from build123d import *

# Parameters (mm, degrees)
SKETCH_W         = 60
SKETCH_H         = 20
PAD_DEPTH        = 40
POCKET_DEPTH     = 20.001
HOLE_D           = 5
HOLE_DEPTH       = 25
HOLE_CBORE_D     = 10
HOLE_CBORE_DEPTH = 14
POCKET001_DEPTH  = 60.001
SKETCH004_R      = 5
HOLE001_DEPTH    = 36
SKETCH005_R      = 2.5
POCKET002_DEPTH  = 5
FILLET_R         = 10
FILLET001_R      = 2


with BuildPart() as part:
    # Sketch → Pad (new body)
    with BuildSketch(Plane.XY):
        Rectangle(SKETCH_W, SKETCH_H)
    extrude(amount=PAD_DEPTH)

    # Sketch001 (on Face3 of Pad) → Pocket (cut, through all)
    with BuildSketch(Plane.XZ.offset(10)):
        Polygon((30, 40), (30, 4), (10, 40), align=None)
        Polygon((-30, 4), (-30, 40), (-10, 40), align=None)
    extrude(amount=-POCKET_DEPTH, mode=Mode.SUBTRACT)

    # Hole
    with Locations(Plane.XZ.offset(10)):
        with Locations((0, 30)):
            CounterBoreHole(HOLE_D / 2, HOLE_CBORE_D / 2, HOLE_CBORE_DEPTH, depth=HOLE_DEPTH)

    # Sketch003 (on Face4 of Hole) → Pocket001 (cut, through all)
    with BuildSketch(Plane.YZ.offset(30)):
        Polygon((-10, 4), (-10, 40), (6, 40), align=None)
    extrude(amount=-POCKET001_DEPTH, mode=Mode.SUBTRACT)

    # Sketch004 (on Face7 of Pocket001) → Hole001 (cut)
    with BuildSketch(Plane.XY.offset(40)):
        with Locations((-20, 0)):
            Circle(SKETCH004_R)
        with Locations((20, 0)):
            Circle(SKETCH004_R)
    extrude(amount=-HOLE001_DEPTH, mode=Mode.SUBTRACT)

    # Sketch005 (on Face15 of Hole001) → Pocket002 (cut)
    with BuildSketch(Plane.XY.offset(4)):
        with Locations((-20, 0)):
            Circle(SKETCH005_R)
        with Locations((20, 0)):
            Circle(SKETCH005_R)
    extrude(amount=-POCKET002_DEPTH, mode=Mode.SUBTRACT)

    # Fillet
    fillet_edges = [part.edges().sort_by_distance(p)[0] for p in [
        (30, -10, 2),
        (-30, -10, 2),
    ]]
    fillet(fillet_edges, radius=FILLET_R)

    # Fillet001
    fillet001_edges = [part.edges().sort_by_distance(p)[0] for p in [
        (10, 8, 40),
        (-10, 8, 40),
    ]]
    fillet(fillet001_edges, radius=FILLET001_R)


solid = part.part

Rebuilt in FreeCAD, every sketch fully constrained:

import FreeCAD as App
import Part
import Sketcher
from FreeCAD import Vector


def edges_at(feature, points):
    """Names of the edges that pass closest to the given points."""
    edges = feature.Shape.Edges
    near = lambda p: min(range(len(edges)), key=lambda i: edges[i].distToShape(Part.Vertex(*p))[0])
    return sorted({f"Edge{near(p) + 1}" for p in points})


def add_polygon(sketch, points):
    """Adds a closed chain of lines whose ends are joined by coincident constraints."""
    first, n = sketch.GeometryCount, len(points)
    for a, b in zip(points, points[1:] + points[:1]):
        sketch.addGeometry(Part.LineSegment(App.Vector(*a, 0), App.Vector(*b, 0)), False)
    for i in range(n):
        sketch.addConstraint(Sketcher.Constraint("Coincident", first + i, 2, first + (i + 1) % n, 1))

doc = App.newDocument("Part")
body = doc.addObject("PartDesign::Body", "Body")

# Sketch on XY plane
sketch1 = body.newObject("Sketcher::SketchObject", "Sketch")
sketch1.AttachmentSupport = (doc.getObject("XY_Plane"), [""])
sketch1.MapMode = "FlatFace"
add_polygon(sketch1, [(-30, 10), (-30, -10), (30, -10), (30, 10)])  # lines 0-3
sketch1.addConstraint(Sketcher.Constraint("Vertical", 0))
sketch1.addConstraint(Sketcher.Constraint("Horizontal", 1))
sketch1.addConstraint(Sketcher.Constraint("Vertical", 2))
sketch1.addConstraint(Sketcher.Constraint("Horizontal", 3))
sketch1.addConstraint(Sketcher.Constraint("Symmetric", 0, 2, 2, 2, -1, 1))
sketch1.addConstraint(Sketcher.Constraint("DistanceX", 1, 1, 1, 2, 60.0))
sketch1.addConstraint(Sketcher.Constraint("DistanceY", 0, 2, 0, 1, 20.0))
pad1 = body.newObject("PartDesign::Pad", "Pad")
pad1.Profile = sketch1
pad1.Length = 40

# Sketch on XZ plane
sketch2 = body.newObject("Sketcher::SketchObject", "Sketch001")
sketch2.AttachmentSupport = (doc.getObject("XZ_Plane"), [""])
sketch2.MapMode = "FlatFace"
sketch2.AttachmentOffset = App.Placement(Vector(0, 0, 10), App.Rotation())
add_polygon(sketch2, [(30, 4), (30, 40), (10, 40)])  # lines 0-2
add_polygon(sketch2, [(-30, 40), (-30, 4), (-10, 40)])  # lines 3-5
sketch2.addConstraint(Sketcher.Constraint("Vertical", 0))
sketch2.addConstraint(Sketcher.Constraint("Horizontal", 1))
sketch2.addConstraint(Sketcher.Constraint("Vertical", 3))
sketch2.addConstraint(Sketcher.Constraint("Horizontal", 5))
sketch2.addConstraint(Sketcher.Constraint("Symmetric", 2, 2, 3, 2, -2))
sketch2.addConstraint(Sketcher.Constraint("Symmetric", 1, 2, 4, 2, -2))
sketch2.addConstraint(Sketcher.Constraint("DistanceX", 1, 2, 1, 1, 20.0))
sketch2.addConstraint(Sketcher.Constraint("DistanceY", 0, 1, 0, 2, 36.0))
sketch2.addConstraint(Sketcher.Constraint("DistanceX", -1, 1, 0, 2, 30.0))
sketch2.addConstraint(Sketcher.Constraint("DistanceY", -1, 1, 0, 2, 40.0))
pocket1 = body.newObject("PartDesign::Pocket", "Pocket")
pocket1.Profile = sketch2
pocket1.Type = "ThroughAll"

# Sketch on XZ plane
sketch3 = body.newObject("Sketcher::SketchObject", "Sketch002")
sketch3.AttachmentSupport = (doc.getObject("XZ_Plane"), [""])
sketch3.MapMode = "FlatFace"
sketch3.AttachmentOffset = App.Placement(Vector(0, 0, 10), App.Rotation())
sketch3.addGeometry(Part.Circle(Vector(0, 30, 0), Vector(0, 0, 1), 2.5), False)
sketch3.addConstraint(Sketcher.Constraint("PointOnObject", 0, 3, -2))
sketch3.addConstraint(Sketcher.Constraint("Diameter", 0, 5.0))
sketch3.addConstraint(Sketcher.Constraint("DistanceY", -1, 1, 0, 3, 30.0))
doc.recompute()
hole = body.newObject("PartDesign::Hole", "Hole")
hole.Profile = sketch3
hole.ThreadType = "None"
hole.Diameter = 5
hole.DepthType = "Dimension"
hole.Depth = 25
hole.DrillPoint = "Flat"
hole.HoleCutType = "Counterbore"
hole.HoleCutDiameter = 10
hole.HoleCutDepth = 14

# Sketch on YZ plane
sketch4 = body.newObject("Sketcher::SketchObject", "Sketch003")
sketch4.AttachmentSupport = (doc.getObject("YZ_Plane"), [""])
sketch4.MapMode = "FlatFace"
sketch4.AttachmentOffset = App.Placement(Vector(0, 0, 30), App.Rotation())
add_polygon(sketch4, [(-10, 40), (-10, 4), (6, 40)])  # lines 0-2
sketch4.addConstraint(Sketcher.Constraint("Vertical", 0))
sketch4.addConstraint(Sketcher.Constraint("Horizontal", 2))
sketch4.addConstraint(Sketcher.Constraint("DistanceX", 2, 2, 2, 1, 16.0))
sketch4.addConstraint(Sketcher.Constraint("DistanceY", 0, 2, 0, 1, 36.0))
sketch4.addConstraint(Sketcher.Constraint("DistanceX", 0, 2, -1, 1, 10.0))
sketch4.addConstraint(Sketcher.Constraint("DistanceY", -1, 1, 0, 2, 4.0))
pocket2 = body.newObject("PartDesign::Pocket", "Pocket001")
pocket2.Profile = sketch4
pocket2.Type = "ThroughAll"

# Sketch on XY plane
sketch5 = body.newObject("Sketcher::SketchObject", "Sketch004")
sketch5.AttachmentSupport = (doc.getObject("XY_Plane"), [""])
sketch5.MapMode = "FlatFace"
sketch5.AttachmentOffset = App.Placement(Vector(0, 0, 40), App.Rotation())
sketch5.addGeometry(Part.Circle(Vector(-20, 0, 0), Vector(0, 0, 1), 5), False)
sketch5.addGeometry(Part.Circle(Vector(20, 0, 0), Vector(0, 0, 1), 5), False)
sketch5.addConstraint(Sketcher.Constraint("Equal", 0, 1))
sketch5.addConstraint(Sketcher.Constraint("Symmetric", 0, 3, 1, 3, -1, 1))
sketch5.addConstraint(Sketcher.Constraint("PointOnObject", 0, 3, -1))
sketch5.addConstraint(Sketcher.Constraint("Diameter", 0, 10.0))
sketch5.addConstraint(Sketcher.Constraint("DistanceX", 0, 3, -1, 1, 20.0))
pocket3 = body.newObject("PartDesign::Pocket", "Pocket002")
pocket3.Profile = sketch5
pocket3.Length = 36

# Sketch on XY plane
sketch6 = body.newObject("Sketcher::SketchObject", "Sketch005")
sketch6.AttachmentSupport = (doc.getObject("XY_Plane"), [""])
sketch6.MapMode = "FlatFace"
sketch6.AttachmentOffset = App.Placement(Vector(0, 0, 4), App.Rotation())
sketch6.addGeometry(Part.Circle(Vector(-20, 0, 0), Vector(0, 0, 1), 2.5), False)
sketch6.addGeometry(Part.Circle(Vector(20, 0, 0), Vector(0, 0, 1), 2.5), False)
sketch6.addConstraint(Sketcher.Constraint("Equal", 0, 1))
sketch6.addConstraint(Sketcher.Constraint("Symmetric", 0, 3, 1, 3, -1, 1))
sketch6.addConstraint(Sketcher.Constraint("PointOnObject", 0, 3, -1))
sketch6.addConstraint(Sketcher.Constraint("Diameter", 0, 5.0))
sketch6.addConstraint(Sketcher.Constraint("DistanceX", 0, 3, -1, 1, 20.0))
pocket4 = body.newObject("PartDesign::Pocket", "Pocket003")
pocket4.Profile = sketch6
pocket4.Length = 5
doc.recompute()

fillet = body.newObject("PartDesign::Fillet", "Fillet")
fillet.Base = (pocket4, edges_at(pocket4, [(30, -10, 2), (-30, -10, 2)]))
fillet.Radius = 10
doc.recompute()

fillet2 = body.newObject("PartDesign::Fillet", "Fillet001")
fillet2.Base = (fillet, edges_at(fillet, [(10, 8, 40), (-10, 8, 40)]))
fillet2.Radius = 2

doc.recompute()
